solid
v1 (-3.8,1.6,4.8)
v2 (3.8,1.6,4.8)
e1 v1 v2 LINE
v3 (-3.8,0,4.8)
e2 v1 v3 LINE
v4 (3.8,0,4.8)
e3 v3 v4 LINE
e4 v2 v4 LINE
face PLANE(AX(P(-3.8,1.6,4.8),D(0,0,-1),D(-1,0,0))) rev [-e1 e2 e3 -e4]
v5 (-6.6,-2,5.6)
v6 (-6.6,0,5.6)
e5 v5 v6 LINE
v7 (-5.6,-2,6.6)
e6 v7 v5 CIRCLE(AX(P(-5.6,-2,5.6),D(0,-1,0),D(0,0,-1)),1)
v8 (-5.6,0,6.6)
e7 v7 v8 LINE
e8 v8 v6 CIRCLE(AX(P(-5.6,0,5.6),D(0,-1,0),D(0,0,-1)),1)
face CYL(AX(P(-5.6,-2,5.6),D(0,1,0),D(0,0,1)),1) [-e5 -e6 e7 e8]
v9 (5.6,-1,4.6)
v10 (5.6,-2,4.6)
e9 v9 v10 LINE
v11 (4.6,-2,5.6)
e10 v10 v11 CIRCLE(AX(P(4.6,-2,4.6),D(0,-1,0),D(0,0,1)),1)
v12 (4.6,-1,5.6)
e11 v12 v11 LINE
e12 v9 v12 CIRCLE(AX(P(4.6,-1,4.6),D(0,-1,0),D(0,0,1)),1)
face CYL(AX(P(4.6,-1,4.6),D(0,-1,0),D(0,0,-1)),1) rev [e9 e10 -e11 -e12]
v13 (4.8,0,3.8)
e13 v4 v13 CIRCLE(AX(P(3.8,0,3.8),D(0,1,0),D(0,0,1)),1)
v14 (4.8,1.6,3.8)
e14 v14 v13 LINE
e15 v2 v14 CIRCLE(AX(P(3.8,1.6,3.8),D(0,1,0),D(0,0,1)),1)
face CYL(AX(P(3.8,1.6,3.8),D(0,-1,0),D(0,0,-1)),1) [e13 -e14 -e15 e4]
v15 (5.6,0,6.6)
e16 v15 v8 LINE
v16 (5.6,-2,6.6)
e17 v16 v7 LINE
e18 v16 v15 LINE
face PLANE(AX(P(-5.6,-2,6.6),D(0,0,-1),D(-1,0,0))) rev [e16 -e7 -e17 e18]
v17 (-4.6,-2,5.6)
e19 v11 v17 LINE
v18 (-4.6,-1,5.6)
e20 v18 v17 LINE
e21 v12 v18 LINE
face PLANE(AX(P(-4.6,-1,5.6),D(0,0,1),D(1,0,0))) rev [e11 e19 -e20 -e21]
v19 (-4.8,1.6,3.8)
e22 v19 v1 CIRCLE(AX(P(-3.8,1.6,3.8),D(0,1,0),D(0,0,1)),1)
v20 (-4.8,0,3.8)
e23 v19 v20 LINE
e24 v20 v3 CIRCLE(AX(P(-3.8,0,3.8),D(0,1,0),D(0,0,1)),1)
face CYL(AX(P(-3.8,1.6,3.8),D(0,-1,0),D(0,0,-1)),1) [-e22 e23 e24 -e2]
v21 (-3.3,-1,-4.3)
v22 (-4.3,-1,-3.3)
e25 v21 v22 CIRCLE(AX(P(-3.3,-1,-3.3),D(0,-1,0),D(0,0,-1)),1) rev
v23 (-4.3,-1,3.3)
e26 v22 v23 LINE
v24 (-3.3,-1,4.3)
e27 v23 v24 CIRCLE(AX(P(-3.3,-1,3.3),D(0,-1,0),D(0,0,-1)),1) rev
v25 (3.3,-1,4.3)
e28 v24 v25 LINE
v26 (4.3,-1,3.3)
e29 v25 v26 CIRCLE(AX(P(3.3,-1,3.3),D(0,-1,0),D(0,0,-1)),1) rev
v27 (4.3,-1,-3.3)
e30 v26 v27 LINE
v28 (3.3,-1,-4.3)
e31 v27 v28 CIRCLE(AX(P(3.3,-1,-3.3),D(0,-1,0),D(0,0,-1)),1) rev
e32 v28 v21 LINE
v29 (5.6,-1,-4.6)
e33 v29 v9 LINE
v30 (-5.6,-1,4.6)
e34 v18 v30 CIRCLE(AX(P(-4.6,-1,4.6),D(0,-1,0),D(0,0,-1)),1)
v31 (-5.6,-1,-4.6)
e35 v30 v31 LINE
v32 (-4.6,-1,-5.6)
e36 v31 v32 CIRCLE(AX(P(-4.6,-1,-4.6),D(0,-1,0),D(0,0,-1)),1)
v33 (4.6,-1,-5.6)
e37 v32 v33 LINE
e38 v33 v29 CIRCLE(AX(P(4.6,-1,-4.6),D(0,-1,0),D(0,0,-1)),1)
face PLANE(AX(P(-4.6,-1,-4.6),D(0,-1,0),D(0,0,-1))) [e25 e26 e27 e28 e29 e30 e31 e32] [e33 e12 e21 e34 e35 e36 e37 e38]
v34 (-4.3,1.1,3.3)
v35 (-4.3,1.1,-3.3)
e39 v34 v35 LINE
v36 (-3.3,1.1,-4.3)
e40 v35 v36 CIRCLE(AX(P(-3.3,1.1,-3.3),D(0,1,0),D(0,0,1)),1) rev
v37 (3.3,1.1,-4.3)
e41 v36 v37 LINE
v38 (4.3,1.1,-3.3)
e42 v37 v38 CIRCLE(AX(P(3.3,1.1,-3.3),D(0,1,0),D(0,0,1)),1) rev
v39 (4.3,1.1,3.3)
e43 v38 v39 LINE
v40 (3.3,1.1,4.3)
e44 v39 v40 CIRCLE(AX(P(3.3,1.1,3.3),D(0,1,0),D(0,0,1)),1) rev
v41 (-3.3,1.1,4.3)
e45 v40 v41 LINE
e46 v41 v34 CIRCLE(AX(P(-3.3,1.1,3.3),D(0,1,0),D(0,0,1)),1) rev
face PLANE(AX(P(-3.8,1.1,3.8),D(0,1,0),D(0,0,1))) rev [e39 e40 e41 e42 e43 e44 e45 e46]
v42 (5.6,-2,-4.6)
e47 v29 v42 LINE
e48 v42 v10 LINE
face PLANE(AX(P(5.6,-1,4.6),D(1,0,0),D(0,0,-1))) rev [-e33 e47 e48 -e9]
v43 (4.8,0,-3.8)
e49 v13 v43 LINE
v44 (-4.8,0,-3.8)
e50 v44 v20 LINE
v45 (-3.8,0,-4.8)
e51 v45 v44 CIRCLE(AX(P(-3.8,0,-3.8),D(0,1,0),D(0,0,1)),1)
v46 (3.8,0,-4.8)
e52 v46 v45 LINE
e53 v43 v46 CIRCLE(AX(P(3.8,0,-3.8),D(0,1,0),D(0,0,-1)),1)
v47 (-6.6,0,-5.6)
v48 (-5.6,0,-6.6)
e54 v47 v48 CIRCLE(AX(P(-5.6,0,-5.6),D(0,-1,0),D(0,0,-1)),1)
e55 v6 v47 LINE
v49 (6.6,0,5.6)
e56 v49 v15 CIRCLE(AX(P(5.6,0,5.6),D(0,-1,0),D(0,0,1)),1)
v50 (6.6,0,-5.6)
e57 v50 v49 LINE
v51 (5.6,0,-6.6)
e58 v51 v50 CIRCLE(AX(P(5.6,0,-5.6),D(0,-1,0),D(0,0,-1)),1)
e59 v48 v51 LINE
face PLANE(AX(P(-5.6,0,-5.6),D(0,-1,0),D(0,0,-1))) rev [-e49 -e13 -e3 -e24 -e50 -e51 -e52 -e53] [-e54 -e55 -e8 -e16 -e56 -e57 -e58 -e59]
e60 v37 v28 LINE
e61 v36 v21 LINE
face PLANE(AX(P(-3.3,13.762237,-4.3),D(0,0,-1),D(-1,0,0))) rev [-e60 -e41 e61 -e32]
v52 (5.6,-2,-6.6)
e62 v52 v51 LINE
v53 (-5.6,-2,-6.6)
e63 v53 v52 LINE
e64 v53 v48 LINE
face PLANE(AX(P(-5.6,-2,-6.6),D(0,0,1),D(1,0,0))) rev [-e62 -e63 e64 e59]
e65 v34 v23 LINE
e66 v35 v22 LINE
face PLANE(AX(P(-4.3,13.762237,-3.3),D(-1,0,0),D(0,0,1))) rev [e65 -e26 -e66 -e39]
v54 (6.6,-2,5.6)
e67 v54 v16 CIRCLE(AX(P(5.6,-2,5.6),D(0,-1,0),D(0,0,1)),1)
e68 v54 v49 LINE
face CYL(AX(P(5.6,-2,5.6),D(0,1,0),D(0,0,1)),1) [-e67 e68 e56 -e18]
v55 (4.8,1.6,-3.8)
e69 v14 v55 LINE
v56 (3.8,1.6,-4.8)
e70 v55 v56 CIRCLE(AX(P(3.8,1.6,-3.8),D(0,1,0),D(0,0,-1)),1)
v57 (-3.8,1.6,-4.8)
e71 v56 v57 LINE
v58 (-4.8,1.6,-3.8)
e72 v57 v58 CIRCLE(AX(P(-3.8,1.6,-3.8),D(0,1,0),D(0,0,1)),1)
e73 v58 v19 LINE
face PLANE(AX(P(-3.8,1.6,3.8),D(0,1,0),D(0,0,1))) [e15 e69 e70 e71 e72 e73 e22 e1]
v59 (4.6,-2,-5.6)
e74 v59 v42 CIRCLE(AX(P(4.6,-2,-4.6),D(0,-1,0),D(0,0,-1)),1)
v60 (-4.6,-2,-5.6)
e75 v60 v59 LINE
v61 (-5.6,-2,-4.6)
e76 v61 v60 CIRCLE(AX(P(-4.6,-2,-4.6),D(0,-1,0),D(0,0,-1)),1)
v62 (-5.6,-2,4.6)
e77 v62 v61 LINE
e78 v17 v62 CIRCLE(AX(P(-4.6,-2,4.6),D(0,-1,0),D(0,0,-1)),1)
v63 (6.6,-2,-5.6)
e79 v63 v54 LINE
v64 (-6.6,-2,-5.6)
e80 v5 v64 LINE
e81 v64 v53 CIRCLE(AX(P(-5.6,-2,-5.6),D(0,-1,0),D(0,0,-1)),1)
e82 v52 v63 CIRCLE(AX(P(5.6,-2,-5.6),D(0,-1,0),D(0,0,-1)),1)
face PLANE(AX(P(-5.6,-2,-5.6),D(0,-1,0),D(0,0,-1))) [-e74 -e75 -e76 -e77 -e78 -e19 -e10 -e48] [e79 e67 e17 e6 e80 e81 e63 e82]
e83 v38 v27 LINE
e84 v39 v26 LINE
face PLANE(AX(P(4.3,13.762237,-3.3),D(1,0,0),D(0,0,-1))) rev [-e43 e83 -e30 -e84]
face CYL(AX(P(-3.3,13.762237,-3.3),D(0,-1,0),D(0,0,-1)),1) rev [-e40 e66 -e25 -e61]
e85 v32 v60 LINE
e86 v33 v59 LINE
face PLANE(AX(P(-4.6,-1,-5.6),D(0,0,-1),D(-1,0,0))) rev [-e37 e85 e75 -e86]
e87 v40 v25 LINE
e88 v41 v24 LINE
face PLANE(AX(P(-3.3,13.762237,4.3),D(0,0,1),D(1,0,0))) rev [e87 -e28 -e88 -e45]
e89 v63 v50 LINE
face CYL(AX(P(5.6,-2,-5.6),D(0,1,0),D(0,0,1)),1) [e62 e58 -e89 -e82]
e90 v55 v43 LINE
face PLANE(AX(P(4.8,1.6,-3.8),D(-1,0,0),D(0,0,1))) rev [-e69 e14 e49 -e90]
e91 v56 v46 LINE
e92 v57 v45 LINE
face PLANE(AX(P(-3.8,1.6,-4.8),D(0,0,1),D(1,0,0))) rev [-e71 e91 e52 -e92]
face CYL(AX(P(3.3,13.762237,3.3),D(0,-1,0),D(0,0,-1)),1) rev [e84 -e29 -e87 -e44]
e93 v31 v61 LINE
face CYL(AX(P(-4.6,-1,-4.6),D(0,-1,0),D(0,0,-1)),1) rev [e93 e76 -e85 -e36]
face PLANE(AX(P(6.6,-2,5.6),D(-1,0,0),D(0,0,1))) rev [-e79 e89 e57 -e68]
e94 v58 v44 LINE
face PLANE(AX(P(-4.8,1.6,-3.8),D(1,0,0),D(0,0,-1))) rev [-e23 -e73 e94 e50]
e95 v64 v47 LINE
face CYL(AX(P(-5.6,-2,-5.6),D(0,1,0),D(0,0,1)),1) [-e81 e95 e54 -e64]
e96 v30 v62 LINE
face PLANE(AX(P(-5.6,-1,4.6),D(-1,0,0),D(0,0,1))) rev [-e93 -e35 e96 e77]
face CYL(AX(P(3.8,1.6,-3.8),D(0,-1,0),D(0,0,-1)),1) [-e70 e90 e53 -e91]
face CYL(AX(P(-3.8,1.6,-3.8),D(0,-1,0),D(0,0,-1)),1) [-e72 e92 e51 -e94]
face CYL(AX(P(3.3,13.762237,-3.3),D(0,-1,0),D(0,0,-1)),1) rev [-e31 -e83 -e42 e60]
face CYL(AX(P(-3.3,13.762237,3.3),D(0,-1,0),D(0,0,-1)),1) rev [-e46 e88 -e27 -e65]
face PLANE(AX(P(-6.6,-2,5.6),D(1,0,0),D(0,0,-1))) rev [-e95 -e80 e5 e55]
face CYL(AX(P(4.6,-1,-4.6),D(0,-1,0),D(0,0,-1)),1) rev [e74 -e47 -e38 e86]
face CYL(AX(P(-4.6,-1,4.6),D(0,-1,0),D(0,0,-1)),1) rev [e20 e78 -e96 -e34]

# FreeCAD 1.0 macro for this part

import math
import FreeCAD as App
import Part
import Sketcher

V = App.Vector
Q = App.Units.Quantity

doc = App.newDocument("Part")
params = doc.addObject("Spreadsheet::Sheet", "Params")
for row, (alias, value) in enumerate([
    ("sketch1_radius", "1 mm"),
    ("sketch1_width", "7.6 mm"),
    ("pad1_length", "1.6 mm"),
    ("sketch2_radius", "1 mm"),
    ("sketch2_width", "11.2 mm"),
    ("pad2_length", "2 mm"),
    ("sketch3_radius", "1 mm"),
    ("sketch3_width", "6.6 mm"),
    ("pocket1_length", "3.1 mm"),
    ("sketch4_radius", "1 mm"),
    ("sketch4_width", "9.2 mm"),
    ("pocket2_length", "1 mm"),
], start=1):
    params.set(f"A{row}", alias)
    params.set(f"B{row}", "=" + value)
    params.setAlias(f"B{row}", alias)

body = doc.addObject("PartDesign::Body", "Body")

# Sketch on XZ plane
sketch1 = doc.addObject("Sketcher::SketchObject", "Sketch")
body.addObject(sketch1)
sketch1.AttachmentSupport = (doc.XZ_Plane, [""])
sketch1.MapMode = "FlatFace"
sketch1.addGeometry([
    Part.LineSegment(V(3.8, -4.8, 0), V(-3.8, -4.8, 0)),  # 0
    Part.ArcOfCircle(Part.Circle(V(-3.8, -3.8, 0), V(0, 0, 1), 1), math.radians(-180), math.radians(-90)),  # 1
    Part.LineSegment(V(-4.8, -3.8, 0), V(-4.8, 3.8, 0)),  # 2
    Part.ArcOfCircle(Part.Circle(V(-3.8, 3.8, 0), V(0, 0, 1), 1), math.radians(90), math.radians(180)),  # 3
    Part.LineSegment(V(-3.8, 4.8, 0), V(3.8, 4.8, 0)),  # 4
    Part.ArcOfCircle(Part.Circle(V(3.8, 3.8, 0), V(0, 0, 1), 1), math.radians(0), math.radians(90)),  # 5
    Part.LineSegment(V(4.8, 3.8, 0), V(4.8, -3.8, 0)),  # 6
    Part.ArcOfCircle(Part.Circle(V(3.8, -3.8, 0), V(0, 0, 1), 1), math.radians(-90), math.radians(0)),  # 7
], False)
sketch1.addConstraint([
    Sketcher.Constraint("Tangent", 0, 2, 1, 2),
    Sketcher.Constraint("Tangent", 1, 1, 2, 1),
    Sketcher.Constraint("Tangent", 2, 2, 3, 2),
    Sketcher.Constraint("Tangent", 3, 1, 4, 1),
    Sketcher.Constraint("Tangent", 4, 2, 5, 2),
    Sketcher.Constraint("Tangent", 5, 1, 6, 1),
    Sketcher.Constraint("Tangent", 6, 2, 7, 2),
    Sketcher.Constraint("Tangent", 7, 1, 0, 1),
    Sketcher.Constraint("Horizontal", 0),
    Sketcher.Constraint("Vertical", 2),
    Sketcher.Constraint("Horizontal", 4),
    Sketcher.Constraint("Vertical", 6),
    Sketcher.Constraint("Equal", 1, 3),
    Sketcher.Constraint("Equal", 3, 5),
    Sketcher.Constraint("Equal", 5, 7),
    Sketcher.Constraint("Symmetric", 1, 3, 5, 3, -1, 1),
    Sketcher.Constraint("Equal", 4, 2),
    Sketcher.Constraint("Radius", 1, Q("1 mm")),
    Sketcher.Constraint("DistanceX", 0, 2, 0, 1, Q("7.6 mm")),
])
sketch1.setExpression("Constraints[17]", "Params.sketch1_radius")
sketch1.setExpression("Constraints[18]", "Params.sketch1_width")
pad1 = doc.addObject("PartDesign::Pad", "Pad")
body.addObject(pad1)
pad1.Profile = sketch1
pad1.setExpression("Length", "Params.pad1_length")
pad1.Reversed = True

# Sketch on XZ plane
sketch2 = doc.addObject("Sketcher::SketchObject", "Sketch001")
body.addObject(sketch2)
sketch2.AttachmentSupport = (doc.XZ_Plane, [""])
sketch2.MapMode = "FlatFace"
sketch2.addGeometry([
    Part.LineSegment(V(5.6, 6.6, 0), V(-5.6, 6.6, 0)),  # 0
    Part.ArcOfCircle(Part.Circle(V(-5.6, 5.6, 0), V(0, 0, 1), 1), math.radians(90), math.radians(180)),  # 1
    Part.LineSegment(V(-6.6, 5.6, 0), V(-6.6, -5.6, 0)),  # 2
    Part.ArcOfCircle(Part.Circle(V(-5.6, -5.6, 0), V(0, 0, 1), 1), math.radians(-180), math.radians(-90)),  # 3
    Part.LineSegment(V(-5.6, -6.6, 0), V(5.6, -6.6, 0)),  # 4
    Part.ArcOfCircle(Part.Circle(V(5.6, -5.6, 0), V(0, 0, 1), 1), math.radians(-90), math.radians(0)),  # 5
    Part.LineSegment(V(6.6, -5.6, 0), V(6.6, 5.6, 0)),  # 6
    Part.ArcOfCircle(Part.Circle(V(5.6, 5.6, 0), V(0, 0, 1), 1), math.radians(0), math.radians(90)),  # 7
], False)
sketch2.addConstraint([
    Sketcher.Constraint("Tangent", 0, 2, 1, 1),
    Sketcher.Constraint("Tangent", 1, 2, 2, 1),
    Sketcher.Constraint("Tangent", 2, 2, 3, 1),
    Sketcher.Constraint("Tangent", 3, 2, 4, 1),
    Sketcher.Constraint("Tangent", 4, 2, 5, 1),
    Sketcher.Constraint("Tangent", 5, 2, 6, 1),
    Sketcher.Constraint("Tangent", 6, 2, 7, 1),
    Sketcher.Constraint("Tangent", 7, 2, 0, 1),
    Sketcher.Constraint("Horizontal", 0),
    Sketcher.Constraint("Vertical", 2),
    Sketcher.Constraint("Horizontal", 4),
    Sketcher.Constraint("Vertical", 6),
    Sketcher.Constraint("Equal", 1, 3),
    Sketcher.Constraint("Equal", 3, 5),
    Sketcher.Constraint("Equal", 5, 7),
    Sketcher.Constraint("Symmetric", 1, 3, 5, 3, -1, 1),
    Sketcher.Constraint("Equal", 4, 2),
    Sketcher.Constraint("Radius", 1, Q("1 mm")),
    Sketcher.Constraint("DistanceX", 0, 2, 0, 1, Q("11.2 mm")),
])
sketch2.setExpression("Constraints[17]", "Params.sketch2_radius")
sketch2.setExpression("Constraints[18]", "Params.sketch2_width")
pad2 = doc.addObject("PartDesign::Pad", "Pad001")
body.addObject(pad2)
pad2.Profile = sketch2
pad2.setExpression("Length", "Params.pad2_length")

# Sketch on XZ plane
sketch3 = doc.addObject("Sketcher::SketchObject", "Sketch002")
body.addObject(sketch3)
sketch3.AttachmentSupport = (doc.XZ_Plane, [""])
sketch3.MapMode = "FlatFace"
sketch3.AttachmentOffset = App.Placement(V(0, 0, 2), App.Rotation())
sketch3.addGeometry([
    Part.LineSegment(V(-3.3, -4.3, 0), V(3.3, -4.3, 0)),  # 0
    Part.ArcOfCircle(Part.Circle(V(3.3, -3.3, 0), V(0, 0, 1), 1), math.radians(-90), math.radians(0)),  # 1
    Part.LineSegment(V(4.3, -3.3, 0), V(4.3, 3.3, 0)),  # 2
    Part.ArcOfCircle(Part.Circle(V(3.3, 3.3, 0), V(0, 0, 1), 1), math.radians(0), math.radians(90)),  # 3
    Part.LineSegment(V(3.3, 4.3, 0), V(-3.3, 4.3, 0)),  # 4
    Part.ArcOfCircle(Part.Circle(V(-3.3, 3.3, 0), V(0, 0, 1), 1), math.radians(90), math.radians(180)),  # 5
    Part.LineSegment(V(-4.3, 3.3, 0), V(-4.3, -3.3, 0)),  # 6
    Part.ArcOfCircle(Part.Circle(V(-3.3, -3.3, 0), V(0, 0, 1), 1), math.radians(-180), math.radians(-90)),  # 7
], False)
sketch3.addConstraint([
    Sketcher.Constraint("Tangent", 0, 2, 1, 1),
    Sketcher.Constraint("Tangent", 1, 2, 2, 1),
    Sketcher.Constraint("Tangent", 2, 2, 3, 1),
    Sketcher.Constraint("Tangent", 3, 2, 4, 1),
    Sketcher.Constraint("Tangent", 4, 2, 5, 1),
    Sketcher.Constraint("Tangent", 5, 2, 6, 1),
    Sketcher.Constraint("Tangent", 6, 2, 7, 1),
    Sketcher.Constraint("Tangent", 7, 2, 0, 1),
    Sketcher.Constraint("Horizontal", 0),
    Sketcher.Constraint("Vertical", 2),
    Sketcher.Constraint("Horizontal", 4),
    Sketcher.Constraint("Vertical", 6),
    Sketcher.Constraint("Equal", 1, 3),
    Sketcher.Constraint("Equal", 3, 5),
    Sketcher.Constraint("Equal", 5, 7),
    Sketcher.Constraint("Symmetric", 1, 3, 5, 3, -1, 1),
    Sketcher.Constraint("Equal", 4, 2),
    Sketcher.Constraint("Radius", 1, Q("1 mm")),
    Sketcher.Constraint("DistanceX", 0, 1, 0, 2, Q("6.6 mm")),
])
sketch3.setExpression("Constraints[17]", "Params.sketch3_radius")
sketch3.setExpression("Constraints[18]", "Params.sketch3_width")
pocket1 = doc.addObject("PartDesign::Pocket", "Pocket")
body.addObject(pocket1)
pocket1.Profile = sketch3
pocket1.setExpression("Length", "Params.pocket1_length")

# Sketch on XZ plane
sketch4 = doc.addObject("Sketcher::SketchObject", "Sketch003")
body.addObject(sketch4)
sketch4.AttachmentSupport = (doc.XZ_Plane, [""])
sketch4.MapMode = "FlatFace"
sketch4.AttachmentOffset = App.Placement(V(0, 0, 2), App.Rotation())
sketch4.addGeometry([
    Part.LineSegment(V(4.6, 5.6, 0), V(-4.6, 5.6, 0)),  # 0
    Part.ArcOfCircle(Part.Circle(V(-4.6, 4.6, 0), V(0, 0, 1), 1), math.radians(90), math.radians(180)),  # 1
    Part.LineSegment(V(-5.6, 4.6, 0), V(-5.6, -4.6, 0)),  # 2
    Part.ArcOfCircle(Part.Circle(V(-4.6, -4.6, 0), V(0, 0, 1), 1), math.radians(-180), math.radians(-90)),  # 3
    Part.LineSegment(V(-4.6, -5.6, 0), V(4.6, -5.6, 0)),  # 4
    Part.ArcOfCircle(Part.Circle(V(4.6, -4.6, 0), V(0, 0, 1), 1), math.radians(-90), math.radians(0)),  # 5
    Part.LineSegment(V(5.6, -4.6, 0), V(5.6, 4.6, 0)),  # 6
    Part.ArcOfCircle(Part.Circle(V(4.6, 4.6, 0), V(0, 0, 1), 1), math.radians(0), math.radians(90)),  # 7
], False)
sketch4.addConstraint([
    Sketcher.Constraint("Tangent", 0, 2, 1, 1),
    Sketcher.Constraint("Tangent", 1, 2, 2, 1),
    Sketcher.Constraint("Tangent", 2, 2, 3, 1),
    Sketcher.Constraint("Tangent", 3, 2, 4, 1),
    Sketcher.Constraint("Tangent", 4, 2, 5, 1),
    Sketcher.Constraint("Tangent", 5, 2, 6, 1),
    Sketcher.Constraint("Tangent", 6, 2, 7, 1),
    Sketcher.Constraint("Tangent", 7, 2, 0, 1),
    Sketcher.Constraint("Horizontal", 0),
    Sketcher.Constraint("Vertical", 2),
    Sketcher.Constraint("Horizontal", 4),
    Sketcher.Constraint("Vertical", 6),
    Sketcher.Constraint("Equal", 1, 3),
    Sketcher.Constraint("Equal", 3, 5),
    Sketcher.Constraint("Equal", 5, 7),
    Sketcher.Constraint("Symmetric", 1, 3, 5, 3, -1, 1),
    Sketcher.Constraint("Equal", 4, 2),
    Sketcher.Constraint("Radius", 1, Q("1 mm")),
    Sketcher.Constraint("DistanceX", 0, 2, 0, 1, Q("9.2 mm")),
])
sketch4.setExpression("Constraints[17]", "Params.sketch4_radius")
sketch4.setExpression("Constraints[18]", "Params.sketch4_width")
pocket2 = doc.addObject("PartDesign::Pocket", "Pocket001")
body.addObject(pocket2)
pocket2.Profile = sketch4
pocket2.setExpression("Length", "Params.pocket2_length")

doc.recompute()
